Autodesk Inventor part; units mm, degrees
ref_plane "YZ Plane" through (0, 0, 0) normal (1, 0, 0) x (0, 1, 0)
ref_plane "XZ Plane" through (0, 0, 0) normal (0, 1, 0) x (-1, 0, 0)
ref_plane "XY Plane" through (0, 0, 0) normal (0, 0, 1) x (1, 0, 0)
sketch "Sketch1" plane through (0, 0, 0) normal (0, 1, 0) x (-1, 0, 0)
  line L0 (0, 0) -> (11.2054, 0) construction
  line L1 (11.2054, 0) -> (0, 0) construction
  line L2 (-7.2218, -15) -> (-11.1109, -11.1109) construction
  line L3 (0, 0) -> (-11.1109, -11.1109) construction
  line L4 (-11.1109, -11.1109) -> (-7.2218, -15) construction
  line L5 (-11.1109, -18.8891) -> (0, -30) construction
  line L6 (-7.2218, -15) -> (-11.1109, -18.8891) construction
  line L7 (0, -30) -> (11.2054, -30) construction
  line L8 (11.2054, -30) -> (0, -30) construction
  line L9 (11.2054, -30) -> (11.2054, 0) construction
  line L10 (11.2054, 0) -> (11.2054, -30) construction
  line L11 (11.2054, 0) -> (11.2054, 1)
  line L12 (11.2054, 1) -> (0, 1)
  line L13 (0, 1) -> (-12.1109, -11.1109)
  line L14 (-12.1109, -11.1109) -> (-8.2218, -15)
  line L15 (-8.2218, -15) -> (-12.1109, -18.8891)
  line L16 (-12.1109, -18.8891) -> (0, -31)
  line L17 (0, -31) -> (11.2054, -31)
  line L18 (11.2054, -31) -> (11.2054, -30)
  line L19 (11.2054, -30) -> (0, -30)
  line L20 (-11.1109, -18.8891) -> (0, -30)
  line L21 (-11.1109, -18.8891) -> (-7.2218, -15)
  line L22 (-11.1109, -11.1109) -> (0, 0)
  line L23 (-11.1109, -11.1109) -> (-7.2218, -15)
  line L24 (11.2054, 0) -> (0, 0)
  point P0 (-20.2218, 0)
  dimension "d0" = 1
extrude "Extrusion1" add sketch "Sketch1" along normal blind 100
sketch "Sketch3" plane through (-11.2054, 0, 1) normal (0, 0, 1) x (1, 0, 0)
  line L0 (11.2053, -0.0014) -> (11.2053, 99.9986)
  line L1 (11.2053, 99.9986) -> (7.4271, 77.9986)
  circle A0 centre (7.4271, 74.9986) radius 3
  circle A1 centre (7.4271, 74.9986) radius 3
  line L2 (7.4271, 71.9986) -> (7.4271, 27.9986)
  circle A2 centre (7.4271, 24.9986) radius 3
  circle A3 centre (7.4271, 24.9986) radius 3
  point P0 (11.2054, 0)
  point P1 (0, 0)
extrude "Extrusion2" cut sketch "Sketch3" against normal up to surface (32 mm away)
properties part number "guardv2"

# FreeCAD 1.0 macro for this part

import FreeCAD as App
import Part
import Sketcher
from FreeCAD import Vector
Q = App.Units.Quantity

doc = App.newDocument("Part")
body = doc.addObject("PartDesign::Body", "Body")

# Sketch on XZ plane
sketch1 = body.newObject("Sketcher::SketchObject", "Sketch")
sketch1.AttachmentSupport = (doc.getObject("XZ_Plane"), [""])
sketch1.MapMode = "FlatFace"
sketch1.addGeometry([
    Part.LineSegment(Vector(0, 0, 0), Vector(-11.2054, 0, 0)),  # 0
    Part.LineSegment(Vector(-11.2054, 0, 0), Vector(-11.2054, 1, 0)),  # 1
    Part.LineSegment(Vector(-11.2054, 1, 0), Vector(0, 1, 0)),  # 2
    Part.LineSegment(Vector(0, 1, 0), Vector(12.1109, -11.1109, 0)),  # 3
    Part.LineSegment(Vector(12.1109, -11.1109, 0), Vector(8.2218, -15, 0)),  # 4
    Part.LineSegment(Vector(8.2218, -15, 0), Vector(12.1109, -18.8891, 0)),  # 5
    Part.LineSegment(Vector(12.1109, -18.8891, 0), Vector(0, -31, 0)),  # 6
    Part.LineSegment(Vector(0, -31, 0), Vector(-11.2054, -31, 0)),  # 7
    Part.LineSegment(Vector(-11.2054, -31, 0), Vector(-11.2054, -30, 0)),  # 8
    Part.LineSegment(Vector(-11.2054, -30, 0), Vector(0, -30, 0)),  # 9
    Part.LineSegment(Vector(0, -30, 0), Vector(11.1109, -18.8891, 0)),  # 10
    Part.LineSegment(Vector(11.1109, -18.8891, 0), Vector(7.2218, -15, 0)),  # 11
    Part.LineSegment(Vector(7.2218, -15, 0), Vector(11.1109, -11.1109, 0)),  # 12
    Part.LineSegment(Vector(11.1109, -11.1109, 0), Vector(0, 0, 0)),  # 13
], False)
sketch1.addConstraint([
    Sketcher.Constraint("Coincident", 0, 2, 1, 1),
    Sketcher.Constraint("Coincident", 1, 2, 2, 1),
    Sketcher.Constraint("Coincident", 2, 2, 3, 1),
    Sketcher.Constraint("Coincident", 3, 2, 4, 1),
    Sketcher.Constraint("Coincident", 4, 2, 5, 1),
    Sketcher.Constraint("Coincident", 5, 2, 6, 1),
    Sketcher.Constraint("Coincident", 6, 2, 7, 1),
    Sketcher.Constraint("Coincident", 7, 2, 8, 1),
    Sketcher.Constraint("Coincident", 8, 2, 9, 1),
    Sketcher.Constraint("Coincident", 9, 2, 10, 1),
    Sketcher.Constraint("Coincident", 10, 2, 11, 1),
    Sketcher.Constraint("Coincident", 11, 2, 12, 1),
    Sketcher.Constraint("Coincident", 12, 2, 13, 1),
    Sketcher.Constraint("Coincident", 13, 2, 0, 1),
    Sketcher.Constraint("Horizontal", 0),
    Sketcher.Constraint("Vertical", 1),
    Sketcher.Constraint("Horizontal", 2),
    Sketcher.Constraint("Horizontal", 7),
    Sketcher.Constraint("Vertical", 8),
    Sketcher.Constraint("Horizontal", 9),
    Sketcher.Constraint("Coincident", 13, 2, -1, 1),
    Sketcher.Constraint("PointOnObject", 2, 2, -2),
    Sketcher.Constraint("PointOnObject", 6, 2, -2),
    Sketcher.Constraint("PointOnObject", 9, 2, -2),
    Sketcher.Constraint("Perpendicular", 3, 4),
    Sketcher.Constraint("Perpendicular", 4, 5),
    Sketcher.Constraint("Perpendicular", 5, 6),
    Sketcher.Constraint("Parallel", 6, 10),
    Sketcher.Constraint("Perpendicular", 10, 11),
    Sketcher.Constraint("Perpendicular", 11, 12),
    Sketcher.Constraint("Perpendicular", 12, 13),
    Sketcher.Constraint("Horizontal", 5, 2, 10, 2),
    Sketcher.Constraint("Horizontal", 4, 2, 11, 2),
    Sketcher.Constraint("Horizontal", 3, 2, 12, 2),
    Sketcher.Constraint("Vertical", 3, 2, 5, 2),
    Sketcher.Constraint("Vertical", 1, 2, 7, 2),
    Sketcher.Constraint("Equal", 1, 8),
    Sketcher.Constraint("DistanceY", 1, 1, 1, 2, Q("1 mm")),
    Sketcher.Constraint("DistanceY", 4, 2, -1, 1, Q("15 mm")),
    Sketcher.Constraint("Distance", 4, Q("5.5 mm")),
    Sketcher.Constraint("DistanceX", 0, 2, 0, 1, Q("11.2054 mm")),
])
pad1 = body.newObject("PartDesign::Pad", "Pad")
pad1.Profile = sketch1
pad1.Length = 100
pad1.Reversed = True

# Sketch on XY plane
sketch2 = body.newObject("Sketcher::SketchObject", "Sketch001")
sketch2.AttachmentSupport = (doc.getObject("XY_Plane"), [""])
sketch2.MapMode = "FlatFace"
sketch2.AttachmentOffset = App.Placement(Vector(0, 0, 1), App.Rotation())
sketch2.addGeometry([
    Part.Circle(Vector(-3.7783, 74.9986, 0), Vector(0, 0, 1), 3),
    Part.Circle(Vector(-3.7783, 24.9986, 0), Vector(0, 0, 1), 3),
], False)
sketch2.addConstraint([
    Sketcher.Constraint("Equal", 0, 1),
    Sketcher.Constraint("Vertical", 0, 3, 1, 3),
    Sketcher.Constraint("Diameter", 0, Q("6 mm")),
    Sketcher.Constraint("DistanceY", 1, 3, 0, 3, Q("50 mm")),
    Sketcher.Constraint("DistanceX", 0, 3, -1, 1, Q("3.7783 mm")),
    Sketcher.Constraint("DistanceY", -1, 1, 0, 3, Q("74.9986 mm")),
])
pocket1 = body.newObject("PartDesign::Pocket", "Pocket")
pocket1.Profile = sketch2
pocket1.Length = 32

doc.recompute()
